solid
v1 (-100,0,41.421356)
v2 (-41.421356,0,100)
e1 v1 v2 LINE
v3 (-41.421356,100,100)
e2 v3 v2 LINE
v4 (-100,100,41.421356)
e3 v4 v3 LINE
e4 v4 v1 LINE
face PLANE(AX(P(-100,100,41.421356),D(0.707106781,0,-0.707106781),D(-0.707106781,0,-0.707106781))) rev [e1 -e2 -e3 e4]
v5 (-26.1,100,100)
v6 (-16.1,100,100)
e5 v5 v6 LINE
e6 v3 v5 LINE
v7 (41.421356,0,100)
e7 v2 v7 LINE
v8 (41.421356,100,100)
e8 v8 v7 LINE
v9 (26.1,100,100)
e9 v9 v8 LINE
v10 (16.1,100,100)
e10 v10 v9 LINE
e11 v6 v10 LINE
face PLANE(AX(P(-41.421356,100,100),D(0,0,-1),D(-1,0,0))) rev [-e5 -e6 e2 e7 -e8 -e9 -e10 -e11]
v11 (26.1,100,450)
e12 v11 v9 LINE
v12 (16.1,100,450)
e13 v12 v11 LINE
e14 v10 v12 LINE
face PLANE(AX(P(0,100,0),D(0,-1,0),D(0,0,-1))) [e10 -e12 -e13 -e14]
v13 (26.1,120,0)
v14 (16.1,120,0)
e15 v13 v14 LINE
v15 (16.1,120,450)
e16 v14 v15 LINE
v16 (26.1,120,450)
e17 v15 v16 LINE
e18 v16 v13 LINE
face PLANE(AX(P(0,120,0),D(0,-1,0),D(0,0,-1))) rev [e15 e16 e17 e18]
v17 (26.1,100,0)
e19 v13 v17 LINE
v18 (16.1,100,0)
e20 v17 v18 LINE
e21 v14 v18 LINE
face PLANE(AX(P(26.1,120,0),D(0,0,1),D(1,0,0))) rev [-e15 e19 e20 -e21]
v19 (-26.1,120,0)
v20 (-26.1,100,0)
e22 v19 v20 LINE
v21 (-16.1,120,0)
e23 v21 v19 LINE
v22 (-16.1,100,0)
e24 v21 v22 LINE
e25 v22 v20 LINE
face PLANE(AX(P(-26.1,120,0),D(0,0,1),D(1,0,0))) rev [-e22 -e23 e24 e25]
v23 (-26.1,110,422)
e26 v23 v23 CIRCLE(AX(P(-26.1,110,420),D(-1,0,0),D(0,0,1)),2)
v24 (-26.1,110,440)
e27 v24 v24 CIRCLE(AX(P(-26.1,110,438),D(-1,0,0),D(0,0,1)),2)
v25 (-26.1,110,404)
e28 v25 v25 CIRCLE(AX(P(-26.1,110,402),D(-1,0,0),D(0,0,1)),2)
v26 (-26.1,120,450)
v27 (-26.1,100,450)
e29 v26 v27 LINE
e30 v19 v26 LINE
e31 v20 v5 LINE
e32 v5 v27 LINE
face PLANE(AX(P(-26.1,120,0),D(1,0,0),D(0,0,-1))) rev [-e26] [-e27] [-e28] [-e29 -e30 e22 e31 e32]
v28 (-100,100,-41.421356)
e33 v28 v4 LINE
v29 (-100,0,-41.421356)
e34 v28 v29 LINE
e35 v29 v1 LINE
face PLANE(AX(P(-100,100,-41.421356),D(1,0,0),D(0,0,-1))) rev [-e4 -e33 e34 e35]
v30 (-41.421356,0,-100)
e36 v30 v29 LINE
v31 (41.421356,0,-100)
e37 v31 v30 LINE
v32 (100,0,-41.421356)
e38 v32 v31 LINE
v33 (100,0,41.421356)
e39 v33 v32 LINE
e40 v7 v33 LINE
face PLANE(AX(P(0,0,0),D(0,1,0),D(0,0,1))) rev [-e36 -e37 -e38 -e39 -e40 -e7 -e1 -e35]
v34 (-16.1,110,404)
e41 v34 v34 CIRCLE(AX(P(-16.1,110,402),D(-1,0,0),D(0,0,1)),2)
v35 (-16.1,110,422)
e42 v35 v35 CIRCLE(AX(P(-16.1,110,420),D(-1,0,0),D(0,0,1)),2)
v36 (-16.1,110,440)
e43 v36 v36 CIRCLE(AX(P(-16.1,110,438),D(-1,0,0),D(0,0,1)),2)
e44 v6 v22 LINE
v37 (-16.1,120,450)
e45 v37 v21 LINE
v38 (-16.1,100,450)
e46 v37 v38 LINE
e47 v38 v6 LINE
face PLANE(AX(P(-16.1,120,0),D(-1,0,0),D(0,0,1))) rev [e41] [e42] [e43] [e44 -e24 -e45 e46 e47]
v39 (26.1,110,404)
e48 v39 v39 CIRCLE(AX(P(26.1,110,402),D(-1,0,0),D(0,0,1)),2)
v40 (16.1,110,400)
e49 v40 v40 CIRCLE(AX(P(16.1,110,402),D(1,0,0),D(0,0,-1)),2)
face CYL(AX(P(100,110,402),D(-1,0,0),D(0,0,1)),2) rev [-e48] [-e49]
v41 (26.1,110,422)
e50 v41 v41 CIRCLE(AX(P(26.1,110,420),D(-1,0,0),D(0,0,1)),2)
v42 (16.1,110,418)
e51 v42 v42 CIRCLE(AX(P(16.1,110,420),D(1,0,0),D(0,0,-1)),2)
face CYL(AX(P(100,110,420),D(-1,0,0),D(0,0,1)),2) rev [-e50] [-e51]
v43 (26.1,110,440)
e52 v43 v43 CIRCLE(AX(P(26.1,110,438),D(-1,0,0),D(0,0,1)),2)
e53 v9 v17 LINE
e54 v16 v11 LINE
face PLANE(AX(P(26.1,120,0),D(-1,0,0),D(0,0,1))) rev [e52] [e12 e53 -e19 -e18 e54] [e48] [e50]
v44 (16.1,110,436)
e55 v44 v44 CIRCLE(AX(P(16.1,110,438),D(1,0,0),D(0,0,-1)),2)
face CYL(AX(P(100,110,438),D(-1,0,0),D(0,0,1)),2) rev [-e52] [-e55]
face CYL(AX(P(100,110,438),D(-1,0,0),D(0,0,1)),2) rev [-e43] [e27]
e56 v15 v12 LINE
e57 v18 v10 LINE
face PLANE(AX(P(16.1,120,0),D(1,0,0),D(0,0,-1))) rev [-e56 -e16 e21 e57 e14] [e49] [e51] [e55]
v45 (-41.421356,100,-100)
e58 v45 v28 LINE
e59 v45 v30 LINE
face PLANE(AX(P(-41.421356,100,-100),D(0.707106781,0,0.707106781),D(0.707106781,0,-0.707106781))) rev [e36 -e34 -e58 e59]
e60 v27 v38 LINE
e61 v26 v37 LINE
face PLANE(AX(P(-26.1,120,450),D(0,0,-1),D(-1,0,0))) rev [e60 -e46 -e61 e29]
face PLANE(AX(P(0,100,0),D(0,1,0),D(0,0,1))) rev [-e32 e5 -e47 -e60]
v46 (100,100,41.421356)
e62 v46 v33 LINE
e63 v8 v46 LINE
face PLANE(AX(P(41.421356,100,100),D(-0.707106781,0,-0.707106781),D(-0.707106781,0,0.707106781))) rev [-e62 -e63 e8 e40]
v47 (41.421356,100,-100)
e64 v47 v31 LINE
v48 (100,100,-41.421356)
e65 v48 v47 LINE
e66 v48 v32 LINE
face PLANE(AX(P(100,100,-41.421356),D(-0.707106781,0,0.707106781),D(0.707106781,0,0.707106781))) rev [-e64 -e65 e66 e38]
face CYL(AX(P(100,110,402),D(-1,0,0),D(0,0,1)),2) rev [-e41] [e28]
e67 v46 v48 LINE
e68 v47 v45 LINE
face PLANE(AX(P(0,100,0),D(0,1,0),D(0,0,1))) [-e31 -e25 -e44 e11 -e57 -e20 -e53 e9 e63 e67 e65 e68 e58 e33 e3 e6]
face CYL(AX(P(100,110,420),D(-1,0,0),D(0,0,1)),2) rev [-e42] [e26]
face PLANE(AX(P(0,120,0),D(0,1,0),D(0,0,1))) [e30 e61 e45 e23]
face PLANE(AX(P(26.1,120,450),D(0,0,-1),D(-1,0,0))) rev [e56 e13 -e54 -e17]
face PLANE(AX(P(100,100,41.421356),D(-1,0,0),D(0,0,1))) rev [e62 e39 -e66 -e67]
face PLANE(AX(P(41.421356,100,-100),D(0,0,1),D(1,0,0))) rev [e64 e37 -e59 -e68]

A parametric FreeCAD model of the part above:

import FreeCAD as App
import Part
import Sketcher

V = App.Vector
Q = App.Units.Quantity

doc = App.newDocument("Part")
params = doc.addObject("Spreadsheet::Sheet", "Params")
for row, (alias, value) in enumerate([
    ("pad1_length", "100 mm"),
    ("sketch2_width", "10 mm"),
    ("sketch2_height", "450 mm"),
    ("pad2_length", "20 mm"),
    ("sketch3_diameter", "4 mm"),
], start=1):
    params.set(f"A{row}", alias)
    params.set(f"B{row}", "=" + value)
    params.setAlias(f"B{row}", alias)

body = doc.addObject("PartDesign::Body", "Body")

# Sketch on XZ plane
sketch1 = body.newObject("Sketcher::SketchObject", "Sketch")
sketch1.AttachmentSupport = (doc.getObject("XZ_Plane"), [""])
sketch1.MapMode = "FlatFace"
sketch1.addGeometry([
    Part.LineSegment(V(100, 41.421356, 0), V(100, -41.421356, 0)),  # 0
    Part.LineSegment(V(100, -41.421356, 0), V(41.421356, -100, 0)),  # 1
    Part.LineSegment(V(41.421356, -100, 0), V(-41.421356, -100, 0)),  # 2
    Part.LineSegment(V(-41.421356, -100, 0), V(-100, -41.421356, 0)),  # 3
    Part.LineSegment(V(-100, -41.421356, 0), V(-100, 41.421356, 0)),  # 4
    Part.LineSegment(V(-100, 41.421356, 0), V(-41.421356, 100, 0)),  # 5
    Part.LineSegment(V(-41.421356, 100, 0), V(41.421356, 100, 0)),  # 6
    Part.LineSegment(V(41.421356, 100, 0), V(100, 41.421356, 0)),  # 7
], False)
sketch1.addConstraint([
    Sketcher.Constraint("Coincident", 0, 2, 1, 1),
    Sketcher.Constraint("Coincident", 1, 2, 2, 1),
    Sketcher.Constraint("Coincident", 2, 2, 3, 1),
    Sketcher.Constraint("Coincident", 3, 2, 4, 1),
    Sketcher.Constraint("Coincident", 4, 2, 5, 1),
    Sketcher.Constraint("Coincident", 5, 2, 6, 1),
    Sketcher.Constraint("Coincident", 6, 2, 7, 1),
    Sketcher.Constraint("Coincident", 7, 2, 0, 1),
    Sketcher.Constraint("Vertical", 0),
    Sketcher.Constraint("Horizontal", 2),
    Sketcher.Constraint("Vertical", 4),
    Sketcher.Constraint("Horizontal", 6),
    Sketcher.Constraint("Symmetric", 0, 2, 4, 2, -1, 1),
    Sketcher.Constraint("Symmetric", 1, 2, 5, 2, -1, 1),
    Sketcher.Constraint("Perpendicular", 1, 3),
    Sketcher.Constraint("Perpendicular", 5, 7),
    Sketcher.Constraint("Horizontal", 0, 2, 3, 2),
    Sketcher.Constraint("Horizontal", 4, 2, 7, 2),
    Sketcher.Constraint("Vertical", 2, 2, 5, 2),
    Sketcher.Constraint("Equal", 6, 0),
    Sketcher.Constraint("DistanceX", -1, 1, 0, 2, Q("100 mm")),
    Sketcher.Constraint("DistanceX", 2, 2, 2, 1, Q("82.842712 mm")),
])
pad1 = body.newObject("PartDesign::Pad", "Pad")
pad1.Profile = sketch1
pad1.setExpression("Length", "Params.pad1_length")
pad1.Reversed = True

# Sketch on XZ plane
sketch2 = body.newObject("Sketcher::SketchObject", "Sketch001")
sketch2.AttachmentSupport = (doc.getObject("XZ_Plane"), [""])
sketch2.MapMode = "FlatFace"
sketch2.AttachmentOffset = App.Placement(V(0, 0, -100), App.Rotation())
sketch2.addGeometry([
    Part.LineSegment(V(-26.1, 0, 0), V(-26.1, 450, 0)),  # 0
    Part.LineSegment(V(-26.1, 450, 0), V(-16.1, 450, 0)),  # 1
    Part.LineSegment(V(-16.1, 450, 0), V(-16.1, 0, 0)),  # 2
    Part.LineSegment(V(-16.1, 0, 0), V(-26.1, 0, 0)),  # 3
    Part.LineSegment(V(16.1, 0, 0), V(16.1, 450, 0)),  # 4
    Part.LineSegment(V(16.1, 450, 0), V(26.1, 450, 0)),  # 5
    Part.LineSegment(V(26.1, 450, 0), V(26.1, 0, 0)),  # 6
    Part.LineSegment(V(26.1, 0, 0), V(16.1, 0, 0)),  # 7
], False)
sketch2.addConstraint([
    Sketcher.Constraint("Coincident", 0, 2, 1, 1),
    Sketcher.Constraint("Coincident", 1, 2, 2, 1),
    Sketcher.Constraint("Coincident", 2, 2, 3, 1),
    Sketcher.Constraint("Coincident", 3, 2, 0, 1),
    Sketcher.Constraint("Coincident", 4, 2, 5, 1),
    Sketcher.Constraint("Coincident", 5, 2, 6, 1),
    Sketcher.Constraint("Coincident", 6, 2, 7, 1),
    Sketcher.Constraint("Coincident", 7, 2, 4, 1),
    Sketcher.Constraint("Vertical", 0),
    Sketcher.Constraint("Horizontal", 1),
    Sketcher.Constraint("Vertical", 2),
    Sketcher.Constraint("Horizontal", 3),
    Sketcher.Constraint("Vertical", 4),
    Sketcher.Constraint("Horizontal", 5),
    Sketcher.Constraint("Vertical", 6),
    Sketcher.Constraint("Horizontal", 7),
    Sketcher.Constraint("Symmetric", 3, 2, 6, 2, -1, 1),
    Sketcher.Constraint("Symmetric", 1, 2, 4, 2, -2),
    Sketcher.Constraint("PointOnObject", 2, 2, -1),
    Sketcher.Constraint("DistanceX", 1, 1, 1, 2, Q("10 mm")),
    Sketcher.Constraint("DistanceY", 0, 1, 0, 2, Q("450 mm")),
    Sketcher.Constraint("DistanceX", 0, 2, -1, 1, Q("26.1 mm")),
])
sketch2.setExpression("Constraints[19]", "Params.sketch2_width")
sketch2.setExpression("Constraints[20]", "Params.sketch2_height")
pad2 = body.newObject("PartDesign::Pad", "Pad001")
pad2.Profile = sketch2
pad2.setExpression("Length", "Params.pad2_length")
pad2.Reversed = True

# Sketch on YZ plane
sketch3 = body.newObject("Sketcher::SketchObject", "Sketch002")
sketch3.AttachmentSupport = (doc.getObject("YZ_Plane"), [""])
sketch3.MapMode = "FlatFace"
sketch3.AttachmentOffset = App.Placement(V(0, 0, -26.1), App.Rotation())
sketch3.addGeometry([
    Part.Circle(V(110, 438, 0), V(0, 0, 1), 2),
    Part.Circle(V(110, 420, 0), V(0, 0, 1), 2),
    Part.Circle(V(110, 402, 0), V(0, 0, 1), 2),
], False)
sketch3.addConstraint([
    Sketcher.Constraint("Equal", 0, 1),
    Sketcher.Constraint("Equal", 1, 2),
    Sketcher.Constraint("Vertical", 0, 3, 1, 3),
    Sketcher.Constraint("Vertical", 1, 3, 2, 3),
    Sketcher.Constraint("Diameter", 0, Q("4 mm")),
    Sketcher.Constraint("DistanceX", -1, 1, 0, 3, Q("110 mm")),
    Sketcher.Constraint("DistanceY", -1, 1, 0, 3, Q("438 mm")),
    Sketcher.Constraint("DistanceY", -1, 1, 1, 3, Q("420 mm")),
    Sketcher.Constraint("DistanceY", -1, 1, 2, 3, Q("402 mm")),
])
sketch3.setExpression("Constraints[4]", "Params.sketch3_diameter")
pocket1 = body.newObject("PartDesign::Pocket", "Pocket")
pocket1.Profile = sketch3
pocket1.Type = "ThroughAll"
pocket1.Reversed = True

doc.recompute()
